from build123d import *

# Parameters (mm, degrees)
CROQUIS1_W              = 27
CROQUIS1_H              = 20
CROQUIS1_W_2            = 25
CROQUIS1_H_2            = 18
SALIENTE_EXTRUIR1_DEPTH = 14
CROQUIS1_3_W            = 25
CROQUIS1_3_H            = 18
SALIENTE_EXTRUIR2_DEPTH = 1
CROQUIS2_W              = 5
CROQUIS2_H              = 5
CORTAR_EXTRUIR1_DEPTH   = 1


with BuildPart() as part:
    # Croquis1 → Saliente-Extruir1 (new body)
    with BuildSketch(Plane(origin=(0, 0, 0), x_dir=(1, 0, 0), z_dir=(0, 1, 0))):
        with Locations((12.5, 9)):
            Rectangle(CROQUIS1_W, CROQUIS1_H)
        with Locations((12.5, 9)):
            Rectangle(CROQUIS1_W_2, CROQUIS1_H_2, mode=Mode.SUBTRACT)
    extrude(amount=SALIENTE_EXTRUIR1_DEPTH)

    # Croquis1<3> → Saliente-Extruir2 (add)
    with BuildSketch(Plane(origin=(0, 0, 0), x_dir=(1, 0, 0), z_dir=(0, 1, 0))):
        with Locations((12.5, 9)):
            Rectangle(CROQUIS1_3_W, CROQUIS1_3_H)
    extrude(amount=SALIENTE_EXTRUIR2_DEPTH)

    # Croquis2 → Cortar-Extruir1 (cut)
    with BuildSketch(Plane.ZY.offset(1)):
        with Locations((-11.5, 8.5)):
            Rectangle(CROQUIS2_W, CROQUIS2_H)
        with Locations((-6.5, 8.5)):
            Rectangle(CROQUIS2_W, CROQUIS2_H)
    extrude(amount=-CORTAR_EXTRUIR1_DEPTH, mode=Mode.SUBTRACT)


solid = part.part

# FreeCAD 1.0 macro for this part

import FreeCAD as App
import Part
import Sketcher

doc = App.newDocument("Part")
body = doc.addObject("PartDesign::Body", "Body")

sketch1 = doc.addObject("Sketcher::SketchObject", "Sketch")
body.addObject(sketch1)
sketch1.AttachmentSupport = (doc.XZ_Plane, [""])
sketch1.MapMode = "FlatFace"
sketch1.addGeometry(Part.LineSegment(App.Vector(-1, -19, 0), App.Vector(-1, 1, 0)), False)
sketch1.addGeometry(Part.LineSegment(App.Vector(-1, 1, 0), App.Vector(26, 1, 0)), False)
sketch1.addGeometry(Part.LineSegment(App.Vector(26, 1, 0), App.Vector(26, -19, 0)), False)
sketch1.addGeometry(Part.LineSegment(App.Vector(26, -19, 0), App.Vector(-1, -19, 0)), False)
sketch1.addGeometry(Part.LineSegment(App.Vector(25, 0, 0), App.Vector(0, 0, 0)), False)
sketch1.addGeometry(Part.LineSegment(App.Vector(0, 0, 0), App.Vector(0, -18, 0)), False)
sketch1.addGeometry(Part.LineSegment(App.Vector(0, -18, 0), App.Vector(25, -18, 0)), False)
sketch1.addGeometry(Part.LineSegment(App.Vector(25, -18, 0), App.Vector(25, 0, 0)), False)
sketch1.addConstraint(Sketcher.Constraint("Coincident", 0, 2, 1, 1))
sketch1.addConstraint(Sketcher.Constraint("Coincident", 1, 2, 2, 1))
sketch1.addConstraint(Sketcher.Constraint("Coincident", 2, 2, 3, 1))
sketch1.addConstraint(Sketcher.Constraint("Coincident", 3, 2, 0, 1))
sketch1.addConstraint(Sketcher.Constraint("Coincident", 4, 2, 5, 1))
sketch1.addConstraint(Sketcher.Constraint("Coincident", 5, 2, 6, 1))
sketch1.addConstraint(Sketcher.Constraint("Coincident", 6, 2, 7, 1))
sketch1.addConstraint(Sketcher.Constraint("Coincident", 7, 2, 4, 1))
sketch1.addConstraint(Sketcher.Constraint("Vertical", 0))
sketch1.addConstraint(Sketcher.Constraint("Horizontal", 1))
sketch1.addConstraint(Sketcher.Constraint("Vertical", 2))
sketch1.addConstraint(Sketcher.Constraint("Horizontal", 3))
sketch1.addConstraint(Sketcher.Constraint("Horizontal", 4))
sketch1.addConstraint(Sketcher.Constraint("Vertical", 5))
sketch1.addConstraint(Sketcher.Constraint("Horizontal", 6))
sketch1.addConstraint(Sketcher.Constraint("Vertical", 7))
sketch1.addConstraint(Sketcher.Constraint("Coincident", 4, 2, -1, 1))
sketch1.addConstraint(Sketcher.Constraint("DistanceX", 1, 1, 1, 2, 27.0))
sketch1.addConstraint(Sketcher.Constraint("DistanceX", 4, 2, 4, 1, 25.0))
sketch1.addConstraint(Sketcher.Constraint("DistanceY", 0, 1, 0, 2, 20.0))
sketch1.addConstraint(Sketcher.Constraint("DistanceY", 5, 2, 5, 1, 18.0))
sketch1.addConstraint(Sketcher.Constraint("DistanceX", 0, 2, -1, 1, 1.0))
sketch1.addConstraint(Sketcher.Constraint("DistanceY", -1, 1, 0, 2, 1.0))
pad1 = doc.addObject("PartDesign::Pad", "Pad")
body.addObject(pad1)
pad1.Profile = sketch1
pad1.Length = 14
pad1.Reversed = True

sketch2 = doc.addObject("Sketcher::SketchObject", "Sketch001")
body.addObject(sketch2)
sketch2.AttachmentSupport = (doc.XZ_Plane, [""])
sketch2.MapMode = "FlatFace"
sketch2.addGeometry(Part.LineSegment(App.Vector(0, -18, 0), App.Vector(0, 0, 0)), False)
sketch2.addGeometry(Part.LineSegment(App.Vector(0, 0, 0), App.Vector(25, 0, 0)), False)
sketch2.addGeometry(Part.LineSegment(App.Vector(25, 0, 0), App.Vector(25, -18, 0)), False)
sketch2.addGeometry(Part.LineSegment(App.Vector(25, -18, 0), App.Vector(0, -18, 0)), False)
sketch2.addConstraint(Sketcher.Constraint("Coincident", 0, 2, 1, 1))
sketch2.addConstraint(Sketcher.Constraint("Coincident", 1, 2, 2, 1))
sketch2.addConstraint(Sketcher.Constraint("Coincident", 2, 2, 3, 1))
sketch2.addConstraint(Sketcher.Constraint("Coincident", 3, 2, 0, 1))
sketch2.addConstraint(Sketcher.Constraint("Vertical", 0))
sketch2.addConstraint(Sketcher.Constraint("Horizontal", 1))
sketch2.addConstraint(Sketcher.Constraint("Vertical", 2))
sketch2.addConstraint(Sketcher.Constraint("Horizontal", 3))
sketch2.addConstraint(Sketcher.Constraint("Coincident", 0, 2, -1, 1))
sketch2.addConstraint(Sketcher.Constraint("DistanceX", 1, 1, 1, 2, 25.0))
sketch2.addConstraint(Sketcher.Constraint("DistanceY", 0, 1, 0, 2, 18.0))
pad2 = doc.addObject("PartDesign::Pad", "Pad001")
body.addObject(pad2)
pad2.Profile = sketch2
pad2.Length = 1
pad2.Reversed = True

sketch3 = doc.addObject("Sketcher::SketchObject", "Sketch002")
body.addObject(sketch3)
sketch3.AttachmentSupport = (doc.YZ_Plane, [""])
sketch3.MapMode = "FlatFace"
sketch3.AttachmentOffset = App.Placement(App.Vector(0, 0, -1), App.Rotation())
sketch3.addGeometry(Part.LineSegment(App.Vector(11, -14, 0), App.Vector(6, -14, 0)), False)
sketch3.addGeometry(Part.LineSegment(App.Vector(6, -14, 0), App.Vector(6, -4, 0)), False)
sketch3.addGeometry(Part.LineSegment(App.Vector(6, -4, 0), App.Vector(11, -4, 0)), False)
sketch3.addGeometry(Part.LineSegment(App.Vector(11, -4, 0), App.Vector(11, -14, 0)), False)
sketch3.addConstraint(Sketcher.Constraint("Coincident", 0, 2, 1, 1))
sketch3.addConstraint(Sketcher.Constraint("Coincident", 1, 2, 2, 1))
sketch3.addConstraint(Sketcher.Constraint("Coincident", 2, 2, 3, 1))
sketch3.addConstraint(Sketcher.Constraint("Coincident", 3, 2, 0, 1))
sketch3.addConstraint(Sketcher.Constraint("Horizontal", 0))
sketch3.addConstraint(Sketcher.Constraint("Vertical", 1))
sketch3.addConstraint(Sketcher.Constraint("Horizontal", 2))
sketch3.addConstraint(Sketcher.Constraint("Vertical", 3))
sketch3.addConstraint(Sketcher.Constraint("DistanceX", 0, 2, 0, 1, 5.0))
sketch3.addConstraint(Sketcher.Constraint("DistanceY", 1, 1, 1, 2, 10.0))
sketch3.addConstraint(Sketcher.Constraint("DistanceX", -1, 1, 0, 2, 6.0))
sketch3.addConstraint(Sketcher.Constraint("DistanceY", 0, 2, -1, 1, 14.0))
pocket1 = doc.addObject("PartDesign::Pocket", "Pocket")
body.addObject(pocket1)
pocket1.Profile = sketch3
pocket1.Length = 1
pocket1.Reversed = True

doc.recompute()
